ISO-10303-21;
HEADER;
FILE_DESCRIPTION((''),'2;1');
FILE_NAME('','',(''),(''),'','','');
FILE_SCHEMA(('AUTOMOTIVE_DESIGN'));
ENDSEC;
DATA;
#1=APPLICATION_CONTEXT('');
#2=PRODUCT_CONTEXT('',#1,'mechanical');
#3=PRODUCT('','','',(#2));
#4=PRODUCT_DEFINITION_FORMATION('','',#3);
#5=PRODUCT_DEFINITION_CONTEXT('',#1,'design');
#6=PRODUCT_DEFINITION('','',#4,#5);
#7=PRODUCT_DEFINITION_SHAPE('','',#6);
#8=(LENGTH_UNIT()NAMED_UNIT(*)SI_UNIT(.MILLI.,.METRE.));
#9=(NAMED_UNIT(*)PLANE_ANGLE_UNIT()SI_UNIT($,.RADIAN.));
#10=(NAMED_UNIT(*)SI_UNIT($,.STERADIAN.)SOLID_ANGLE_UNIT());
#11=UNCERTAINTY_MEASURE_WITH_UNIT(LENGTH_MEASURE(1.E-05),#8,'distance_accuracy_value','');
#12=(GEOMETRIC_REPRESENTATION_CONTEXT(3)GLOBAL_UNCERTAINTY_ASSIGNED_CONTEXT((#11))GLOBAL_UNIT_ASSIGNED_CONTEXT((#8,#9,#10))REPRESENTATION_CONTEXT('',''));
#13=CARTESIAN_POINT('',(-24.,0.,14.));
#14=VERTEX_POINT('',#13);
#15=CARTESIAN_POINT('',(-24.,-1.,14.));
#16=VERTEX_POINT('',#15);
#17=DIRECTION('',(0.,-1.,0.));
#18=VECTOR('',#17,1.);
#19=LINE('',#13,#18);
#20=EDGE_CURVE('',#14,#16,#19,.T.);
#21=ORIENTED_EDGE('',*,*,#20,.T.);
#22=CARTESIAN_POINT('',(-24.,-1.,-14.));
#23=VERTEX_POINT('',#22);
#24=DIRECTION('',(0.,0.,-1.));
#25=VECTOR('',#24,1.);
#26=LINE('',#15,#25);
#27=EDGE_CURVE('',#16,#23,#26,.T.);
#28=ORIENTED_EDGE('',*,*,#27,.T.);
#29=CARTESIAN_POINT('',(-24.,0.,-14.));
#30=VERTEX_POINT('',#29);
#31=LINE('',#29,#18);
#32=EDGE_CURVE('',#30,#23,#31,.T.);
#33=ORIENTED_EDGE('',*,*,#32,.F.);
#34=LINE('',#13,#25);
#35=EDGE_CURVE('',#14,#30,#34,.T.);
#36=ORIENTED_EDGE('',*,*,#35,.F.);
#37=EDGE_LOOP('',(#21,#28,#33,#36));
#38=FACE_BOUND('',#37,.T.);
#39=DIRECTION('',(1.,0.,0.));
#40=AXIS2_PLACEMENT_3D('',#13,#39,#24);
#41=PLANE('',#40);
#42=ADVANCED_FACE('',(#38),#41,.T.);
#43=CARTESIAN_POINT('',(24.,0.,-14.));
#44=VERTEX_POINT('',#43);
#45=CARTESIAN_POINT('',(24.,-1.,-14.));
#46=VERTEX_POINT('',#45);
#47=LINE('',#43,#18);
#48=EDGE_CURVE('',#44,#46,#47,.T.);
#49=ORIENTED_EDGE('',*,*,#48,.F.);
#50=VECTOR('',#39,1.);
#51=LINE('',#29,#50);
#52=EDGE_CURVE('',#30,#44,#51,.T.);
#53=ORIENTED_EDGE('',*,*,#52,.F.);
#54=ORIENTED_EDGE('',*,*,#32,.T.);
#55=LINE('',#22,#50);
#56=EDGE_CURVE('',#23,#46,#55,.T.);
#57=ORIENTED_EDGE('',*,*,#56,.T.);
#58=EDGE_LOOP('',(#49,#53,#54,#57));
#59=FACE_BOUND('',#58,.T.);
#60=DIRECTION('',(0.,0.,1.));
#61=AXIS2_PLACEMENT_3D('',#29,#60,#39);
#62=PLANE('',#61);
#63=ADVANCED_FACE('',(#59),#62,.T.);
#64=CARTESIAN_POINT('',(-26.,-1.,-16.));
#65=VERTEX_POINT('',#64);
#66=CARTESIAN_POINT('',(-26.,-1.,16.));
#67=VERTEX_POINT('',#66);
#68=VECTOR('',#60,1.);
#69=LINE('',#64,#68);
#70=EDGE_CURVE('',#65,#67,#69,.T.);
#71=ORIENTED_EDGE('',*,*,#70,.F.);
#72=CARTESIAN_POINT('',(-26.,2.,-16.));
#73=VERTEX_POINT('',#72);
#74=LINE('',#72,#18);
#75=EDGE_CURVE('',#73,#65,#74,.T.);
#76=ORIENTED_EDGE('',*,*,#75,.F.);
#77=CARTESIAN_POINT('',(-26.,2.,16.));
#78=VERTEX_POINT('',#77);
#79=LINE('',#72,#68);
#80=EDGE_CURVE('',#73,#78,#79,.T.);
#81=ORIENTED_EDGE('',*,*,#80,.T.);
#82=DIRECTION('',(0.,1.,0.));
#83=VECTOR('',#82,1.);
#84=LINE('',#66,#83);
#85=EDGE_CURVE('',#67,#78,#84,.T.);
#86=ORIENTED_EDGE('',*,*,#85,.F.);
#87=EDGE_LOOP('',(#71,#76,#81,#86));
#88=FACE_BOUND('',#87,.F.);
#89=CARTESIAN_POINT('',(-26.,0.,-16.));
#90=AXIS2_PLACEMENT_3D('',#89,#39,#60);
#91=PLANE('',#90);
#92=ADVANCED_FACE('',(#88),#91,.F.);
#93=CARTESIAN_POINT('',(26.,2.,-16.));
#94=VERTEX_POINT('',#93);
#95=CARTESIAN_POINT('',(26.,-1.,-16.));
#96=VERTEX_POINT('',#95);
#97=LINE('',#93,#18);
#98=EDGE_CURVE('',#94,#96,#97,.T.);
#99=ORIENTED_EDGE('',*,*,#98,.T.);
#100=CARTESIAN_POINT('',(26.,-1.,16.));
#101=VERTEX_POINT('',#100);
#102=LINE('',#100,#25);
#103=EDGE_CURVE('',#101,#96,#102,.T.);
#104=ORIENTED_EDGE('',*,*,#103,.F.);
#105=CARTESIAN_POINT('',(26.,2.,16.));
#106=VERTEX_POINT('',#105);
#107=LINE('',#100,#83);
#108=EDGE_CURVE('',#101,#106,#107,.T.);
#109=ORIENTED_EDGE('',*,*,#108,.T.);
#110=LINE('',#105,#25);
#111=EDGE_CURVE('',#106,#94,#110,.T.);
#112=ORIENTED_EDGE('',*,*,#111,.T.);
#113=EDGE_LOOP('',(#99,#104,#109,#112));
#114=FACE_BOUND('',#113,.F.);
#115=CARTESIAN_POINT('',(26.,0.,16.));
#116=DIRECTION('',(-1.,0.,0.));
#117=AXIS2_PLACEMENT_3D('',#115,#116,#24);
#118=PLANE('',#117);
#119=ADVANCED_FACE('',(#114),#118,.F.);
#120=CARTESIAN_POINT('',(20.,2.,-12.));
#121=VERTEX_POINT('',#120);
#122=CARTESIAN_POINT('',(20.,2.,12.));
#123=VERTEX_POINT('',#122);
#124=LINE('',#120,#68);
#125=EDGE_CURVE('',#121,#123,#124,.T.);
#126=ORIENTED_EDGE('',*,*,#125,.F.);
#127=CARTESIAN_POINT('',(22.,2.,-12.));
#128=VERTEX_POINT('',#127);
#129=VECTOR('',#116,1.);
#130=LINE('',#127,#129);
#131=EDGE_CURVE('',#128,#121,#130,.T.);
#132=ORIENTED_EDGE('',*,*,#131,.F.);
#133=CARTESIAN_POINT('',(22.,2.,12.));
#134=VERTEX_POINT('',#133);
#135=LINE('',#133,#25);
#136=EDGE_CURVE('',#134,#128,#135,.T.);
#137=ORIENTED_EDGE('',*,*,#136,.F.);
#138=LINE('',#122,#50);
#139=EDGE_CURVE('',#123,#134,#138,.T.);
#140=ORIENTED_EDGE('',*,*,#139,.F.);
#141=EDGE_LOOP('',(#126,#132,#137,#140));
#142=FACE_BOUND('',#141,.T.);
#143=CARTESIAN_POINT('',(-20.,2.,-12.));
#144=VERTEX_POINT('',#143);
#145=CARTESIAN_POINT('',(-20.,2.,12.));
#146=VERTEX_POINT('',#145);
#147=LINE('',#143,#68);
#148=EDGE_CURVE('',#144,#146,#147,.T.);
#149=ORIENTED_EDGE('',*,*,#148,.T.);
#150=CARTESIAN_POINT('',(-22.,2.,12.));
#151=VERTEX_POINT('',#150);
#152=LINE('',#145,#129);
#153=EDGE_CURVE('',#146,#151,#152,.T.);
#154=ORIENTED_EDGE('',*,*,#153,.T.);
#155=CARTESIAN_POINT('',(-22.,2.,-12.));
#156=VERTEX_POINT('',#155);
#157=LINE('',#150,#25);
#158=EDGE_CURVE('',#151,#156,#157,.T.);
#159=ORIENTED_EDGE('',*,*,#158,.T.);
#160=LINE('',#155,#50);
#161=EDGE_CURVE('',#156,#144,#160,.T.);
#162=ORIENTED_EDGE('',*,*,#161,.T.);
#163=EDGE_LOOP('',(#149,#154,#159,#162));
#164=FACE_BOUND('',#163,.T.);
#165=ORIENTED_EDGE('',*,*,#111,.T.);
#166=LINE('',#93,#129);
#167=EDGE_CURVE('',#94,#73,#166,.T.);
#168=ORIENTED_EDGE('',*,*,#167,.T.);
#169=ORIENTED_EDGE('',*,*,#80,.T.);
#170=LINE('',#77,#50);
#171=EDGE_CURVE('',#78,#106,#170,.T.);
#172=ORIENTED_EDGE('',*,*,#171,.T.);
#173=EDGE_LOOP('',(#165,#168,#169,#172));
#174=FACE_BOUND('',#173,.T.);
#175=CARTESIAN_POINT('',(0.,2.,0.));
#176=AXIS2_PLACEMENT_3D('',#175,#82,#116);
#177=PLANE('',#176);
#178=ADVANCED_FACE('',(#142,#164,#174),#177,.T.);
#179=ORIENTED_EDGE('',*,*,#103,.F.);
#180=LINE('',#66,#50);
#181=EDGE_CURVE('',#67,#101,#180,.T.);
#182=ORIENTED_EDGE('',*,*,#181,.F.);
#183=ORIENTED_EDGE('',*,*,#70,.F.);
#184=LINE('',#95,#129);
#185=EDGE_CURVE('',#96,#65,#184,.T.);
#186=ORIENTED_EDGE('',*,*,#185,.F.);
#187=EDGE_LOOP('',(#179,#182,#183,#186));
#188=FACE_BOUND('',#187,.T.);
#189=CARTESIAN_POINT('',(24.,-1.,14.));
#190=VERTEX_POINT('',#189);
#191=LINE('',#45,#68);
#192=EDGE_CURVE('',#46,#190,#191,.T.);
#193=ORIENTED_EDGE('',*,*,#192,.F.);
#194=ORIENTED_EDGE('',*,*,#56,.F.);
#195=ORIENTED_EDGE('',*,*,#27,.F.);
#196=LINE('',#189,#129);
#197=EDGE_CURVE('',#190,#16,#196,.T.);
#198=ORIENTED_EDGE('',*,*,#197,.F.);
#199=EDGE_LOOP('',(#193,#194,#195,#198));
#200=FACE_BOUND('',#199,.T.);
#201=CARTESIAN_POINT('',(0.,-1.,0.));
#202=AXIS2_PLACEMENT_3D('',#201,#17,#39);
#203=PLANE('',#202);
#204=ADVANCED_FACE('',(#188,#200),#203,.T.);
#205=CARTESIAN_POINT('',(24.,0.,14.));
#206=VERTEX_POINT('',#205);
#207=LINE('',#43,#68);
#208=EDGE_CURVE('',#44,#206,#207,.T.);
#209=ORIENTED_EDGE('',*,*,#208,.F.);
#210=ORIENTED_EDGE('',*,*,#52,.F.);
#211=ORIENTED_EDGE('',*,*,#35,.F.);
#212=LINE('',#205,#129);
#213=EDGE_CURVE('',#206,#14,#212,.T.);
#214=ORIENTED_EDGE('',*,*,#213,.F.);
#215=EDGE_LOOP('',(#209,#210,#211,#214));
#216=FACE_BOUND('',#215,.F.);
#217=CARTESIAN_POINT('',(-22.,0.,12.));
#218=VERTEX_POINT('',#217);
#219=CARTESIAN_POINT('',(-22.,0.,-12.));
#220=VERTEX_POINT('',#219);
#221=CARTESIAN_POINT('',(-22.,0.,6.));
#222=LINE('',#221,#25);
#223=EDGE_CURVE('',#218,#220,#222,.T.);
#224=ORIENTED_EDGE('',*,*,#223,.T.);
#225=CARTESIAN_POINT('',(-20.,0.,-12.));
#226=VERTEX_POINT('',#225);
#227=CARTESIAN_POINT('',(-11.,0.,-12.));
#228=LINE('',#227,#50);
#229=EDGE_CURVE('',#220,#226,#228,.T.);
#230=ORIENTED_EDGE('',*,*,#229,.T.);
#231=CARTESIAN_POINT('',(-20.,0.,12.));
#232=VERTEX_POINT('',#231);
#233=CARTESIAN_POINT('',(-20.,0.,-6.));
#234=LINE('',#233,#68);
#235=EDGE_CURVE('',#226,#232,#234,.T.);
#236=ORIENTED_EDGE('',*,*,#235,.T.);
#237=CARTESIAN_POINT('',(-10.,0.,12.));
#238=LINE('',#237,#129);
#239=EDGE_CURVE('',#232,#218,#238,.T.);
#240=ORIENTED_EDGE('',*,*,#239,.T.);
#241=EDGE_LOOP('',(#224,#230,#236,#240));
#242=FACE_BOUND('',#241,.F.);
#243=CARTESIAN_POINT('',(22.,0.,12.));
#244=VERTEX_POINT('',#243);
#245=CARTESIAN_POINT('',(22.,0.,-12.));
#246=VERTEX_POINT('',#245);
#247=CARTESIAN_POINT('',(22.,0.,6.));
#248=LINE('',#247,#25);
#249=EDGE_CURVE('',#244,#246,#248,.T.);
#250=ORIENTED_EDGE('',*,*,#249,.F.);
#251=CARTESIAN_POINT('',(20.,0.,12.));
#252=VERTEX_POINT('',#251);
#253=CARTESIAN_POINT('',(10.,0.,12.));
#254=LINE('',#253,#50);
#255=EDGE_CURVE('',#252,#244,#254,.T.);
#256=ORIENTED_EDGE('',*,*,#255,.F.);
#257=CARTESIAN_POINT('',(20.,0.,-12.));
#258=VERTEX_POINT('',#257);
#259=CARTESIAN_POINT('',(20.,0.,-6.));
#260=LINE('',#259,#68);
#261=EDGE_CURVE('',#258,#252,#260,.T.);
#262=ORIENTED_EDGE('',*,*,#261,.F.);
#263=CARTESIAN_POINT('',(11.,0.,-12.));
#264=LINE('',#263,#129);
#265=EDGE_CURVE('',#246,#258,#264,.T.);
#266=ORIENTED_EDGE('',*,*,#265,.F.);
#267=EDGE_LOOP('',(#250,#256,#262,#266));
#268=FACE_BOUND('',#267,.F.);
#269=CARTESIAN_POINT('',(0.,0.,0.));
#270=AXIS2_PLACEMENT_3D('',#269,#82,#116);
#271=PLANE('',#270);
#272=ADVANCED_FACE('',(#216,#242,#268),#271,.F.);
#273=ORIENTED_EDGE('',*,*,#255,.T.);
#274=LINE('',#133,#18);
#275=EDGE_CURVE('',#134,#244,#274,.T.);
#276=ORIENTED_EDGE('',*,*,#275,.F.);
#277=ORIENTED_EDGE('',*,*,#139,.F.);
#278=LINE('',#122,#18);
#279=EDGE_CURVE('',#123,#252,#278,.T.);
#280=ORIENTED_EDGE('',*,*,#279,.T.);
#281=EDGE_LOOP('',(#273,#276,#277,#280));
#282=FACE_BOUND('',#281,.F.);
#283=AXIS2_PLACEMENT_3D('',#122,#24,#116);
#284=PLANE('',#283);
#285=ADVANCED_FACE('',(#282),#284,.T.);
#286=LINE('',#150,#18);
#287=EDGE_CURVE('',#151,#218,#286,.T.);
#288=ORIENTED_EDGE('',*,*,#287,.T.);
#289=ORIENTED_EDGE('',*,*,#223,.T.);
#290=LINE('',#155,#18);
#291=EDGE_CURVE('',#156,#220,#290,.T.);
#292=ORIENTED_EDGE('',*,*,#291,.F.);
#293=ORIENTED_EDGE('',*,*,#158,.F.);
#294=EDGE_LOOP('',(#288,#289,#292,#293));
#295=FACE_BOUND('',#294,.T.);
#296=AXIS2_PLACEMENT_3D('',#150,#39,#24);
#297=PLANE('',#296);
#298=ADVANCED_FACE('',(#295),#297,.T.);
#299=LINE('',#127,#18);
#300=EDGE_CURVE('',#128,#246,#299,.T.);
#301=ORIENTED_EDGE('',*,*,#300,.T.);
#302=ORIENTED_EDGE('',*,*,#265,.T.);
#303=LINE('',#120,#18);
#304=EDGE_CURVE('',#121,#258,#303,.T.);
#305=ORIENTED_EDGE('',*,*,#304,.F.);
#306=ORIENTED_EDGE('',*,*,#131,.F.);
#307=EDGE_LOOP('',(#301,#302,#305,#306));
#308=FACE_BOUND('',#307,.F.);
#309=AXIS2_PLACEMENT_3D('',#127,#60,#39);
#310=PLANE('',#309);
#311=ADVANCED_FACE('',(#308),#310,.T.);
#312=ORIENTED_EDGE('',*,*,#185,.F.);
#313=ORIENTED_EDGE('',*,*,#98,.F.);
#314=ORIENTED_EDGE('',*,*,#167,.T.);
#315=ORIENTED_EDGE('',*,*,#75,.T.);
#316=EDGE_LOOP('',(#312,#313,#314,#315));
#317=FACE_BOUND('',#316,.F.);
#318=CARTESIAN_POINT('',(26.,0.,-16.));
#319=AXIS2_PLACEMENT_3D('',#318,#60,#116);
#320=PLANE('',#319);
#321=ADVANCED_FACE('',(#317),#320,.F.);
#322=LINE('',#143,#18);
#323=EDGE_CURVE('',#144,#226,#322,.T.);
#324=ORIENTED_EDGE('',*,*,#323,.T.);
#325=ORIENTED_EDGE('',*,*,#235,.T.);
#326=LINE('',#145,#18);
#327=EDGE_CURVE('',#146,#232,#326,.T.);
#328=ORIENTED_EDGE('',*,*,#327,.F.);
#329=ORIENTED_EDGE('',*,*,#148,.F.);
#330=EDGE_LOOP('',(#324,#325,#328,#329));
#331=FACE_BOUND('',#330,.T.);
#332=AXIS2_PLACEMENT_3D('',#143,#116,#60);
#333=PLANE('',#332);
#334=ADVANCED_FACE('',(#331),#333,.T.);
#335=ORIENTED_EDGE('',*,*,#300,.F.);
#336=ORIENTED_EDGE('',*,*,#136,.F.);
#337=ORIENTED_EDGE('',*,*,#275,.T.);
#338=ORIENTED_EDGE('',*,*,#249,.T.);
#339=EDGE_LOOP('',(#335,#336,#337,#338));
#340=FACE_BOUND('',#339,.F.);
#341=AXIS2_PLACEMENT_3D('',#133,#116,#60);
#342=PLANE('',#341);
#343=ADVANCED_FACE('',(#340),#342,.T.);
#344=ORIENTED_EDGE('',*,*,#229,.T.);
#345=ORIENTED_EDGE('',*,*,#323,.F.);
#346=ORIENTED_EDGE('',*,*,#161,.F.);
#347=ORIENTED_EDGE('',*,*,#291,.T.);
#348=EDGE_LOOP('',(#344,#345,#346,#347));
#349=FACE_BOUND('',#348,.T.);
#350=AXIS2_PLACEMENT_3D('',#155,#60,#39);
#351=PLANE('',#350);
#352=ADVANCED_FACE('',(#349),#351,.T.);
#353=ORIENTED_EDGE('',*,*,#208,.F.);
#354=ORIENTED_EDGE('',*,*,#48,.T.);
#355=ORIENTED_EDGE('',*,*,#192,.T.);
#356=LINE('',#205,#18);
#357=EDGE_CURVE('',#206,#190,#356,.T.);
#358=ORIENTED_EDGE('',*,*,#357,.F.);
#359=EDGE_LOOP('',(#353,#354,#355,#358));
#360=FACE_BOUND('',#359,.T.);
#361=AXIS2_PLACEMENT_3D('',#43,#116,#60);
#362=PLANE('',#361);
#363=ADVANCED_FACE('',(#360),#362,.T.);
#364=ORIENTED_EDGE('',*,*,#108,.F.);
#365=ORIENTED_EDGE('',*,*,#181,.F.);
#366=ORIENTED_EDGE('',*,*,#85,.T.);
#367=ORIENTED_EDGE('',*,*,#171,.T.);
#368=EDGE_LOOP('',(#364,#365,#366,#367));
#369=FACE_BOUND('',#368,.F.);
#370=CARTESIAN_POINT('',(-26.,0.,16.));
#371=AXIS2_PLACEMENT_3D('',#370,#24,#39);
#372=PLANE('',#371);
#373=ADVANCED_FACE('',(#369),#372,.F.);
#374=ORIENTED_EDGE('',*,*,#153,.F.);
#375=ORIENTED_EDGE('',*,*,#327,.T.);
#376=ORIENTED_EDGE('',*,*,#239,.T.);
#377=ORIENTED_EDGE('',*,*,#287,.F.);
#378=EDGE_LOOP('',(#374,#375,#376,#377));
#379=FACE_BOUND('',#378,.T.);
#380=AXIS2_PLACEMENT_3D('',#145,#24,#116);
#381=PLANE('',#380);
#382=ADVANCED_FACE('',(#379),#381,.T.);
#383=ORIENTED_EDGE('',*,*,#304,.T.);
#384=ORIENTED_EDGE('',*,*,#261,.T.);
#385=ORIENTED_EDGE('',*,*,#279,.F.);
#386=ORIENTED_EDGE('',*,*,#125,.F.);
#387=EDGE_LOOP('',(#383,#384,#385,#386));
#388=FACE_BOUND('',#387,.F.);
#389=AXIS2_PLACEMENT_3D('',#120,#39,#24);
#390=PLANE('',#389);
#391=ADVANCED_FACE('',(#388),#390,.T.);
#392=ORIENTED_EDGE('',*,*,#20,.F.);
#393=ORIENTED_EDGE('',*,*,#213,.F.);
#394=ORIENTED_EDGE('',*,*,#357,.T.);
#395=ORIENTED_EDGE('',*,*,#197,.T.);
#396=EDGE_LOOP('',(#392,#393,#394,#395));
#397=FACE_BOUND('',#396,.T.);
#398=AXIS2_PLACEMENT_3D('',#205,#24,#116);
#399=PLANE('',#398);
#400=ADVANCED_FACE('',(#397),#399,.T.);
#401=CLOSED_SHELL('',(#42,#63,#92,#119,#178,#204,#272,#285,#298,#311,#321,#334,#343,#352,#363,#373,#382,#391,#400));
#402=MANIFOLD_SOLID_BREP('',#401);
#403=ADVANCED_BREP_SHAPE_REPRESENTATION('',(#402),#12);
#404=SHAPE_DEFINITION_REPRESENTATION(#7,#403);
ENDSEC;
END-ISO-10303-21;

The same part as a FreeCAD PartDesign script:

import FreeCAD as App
import Part
import Sketcher

V = App.Vector


def add_polygon(sketch, points):
    """Adds a closed chain of lines whose ends are joined by coincident constraints."""
    first, n = sketch.GeometryCount, len(points)
    for a, b in zip(points, points[1:] + points[:1]):
        sketch.addGeometry(Part.LineSegment(App.Vector(*a, 0), App.Vector(*b, 0)), False)
    for i in range(n):
        sketch.addConstraint(Sketcher.Constraint("Coincident", first + i, 2, first + (i + 1) % n, 1))

doc = App.newDocument("Part")
body = doc.addObject("PartDesign::Body", "Body")

# Sketch on XZ plane
sketch1 = body.newObject("Sketcher::SketchObject", "Sketch")
sketch1.AttachmentSupport = (doc.getObject("XZ_Plane"), [""])
sketch1.MapMode = "FlatFace"
add_polygon(sketch1, [(-26, -16), (-26, 16), (26, 16), (26, -16)])  # lines 0-3
sketch1.addConstraint([
    Sketcher.Constraint("Vertical", 0),
    Sketcher.Constraint("Horizontal", 1),
    Sketcher.Constraint("Vertical", 2),
    Sketcher.Constraint("Horizontal", 3),
    Sketcher.Constraint("Symmetric", 0, 2, 2, 2, -1, 1),
    Sketcher.Constraint("DistanceX", 1, 1, 1, 2, 52.0),
    Sketcher.Constraint("DistanceY", 0, 1, 0, 2, 32.0),
])
pad1 = body.newObject("PartDesign::Pad", "Pad")
pad1.Profile = sketch1
pad1.Length = 2
pad1.Reversed = True

# Sketch on XZ plane
sketch2 = body.newObject("Sketcher::SketchObject", "Sketch001")
sketch2.AttachmentSupport = (doc.getObject("XZ_Plane"), [""])
sketch2.MapMode = "FlatFace"
add_polygon(sketch2, [(26, 16), (-26, 16), (-26, -16), (26, -16)])  # lines 0-3
add_polygon(sketch2, [(-24, 14), (24, 14), (24, -14), (-24, -14)])  # lines 4-7
sketch2.addConstraint([
    Sketcher.Constraint("Horizontal", 0),
    Sketcher.Constraint("Vertical", 1),
    Sketcher.Constraint("Horizontal", 2),
    Sketcher.Constraint("Vertical", 3),
    Sketcher.Constraint("Horizontal", 4),
    Sketcher.Constraint("Vertical", 5),
    Sketcher.Constraint("Horizontal", 6),
    Sketcher.Constraint("Vertical", 7),
    Sketcher.Constraint("Symmetric", 0, 2, 2, 2, -1, 1),
    Sketcher.Constraint("Symmetric", 4, 2, 6, 2, -1, 1),
    Sketcher.Constraint("DistanceX", 4, 2, 3, 2, 2.0),
    Sketcher.Constraint("DistanceY", 4, 2, 3, 2, 2.0),
    Sketcher.Constraint("DistanceX", 0, 2, 0, 1, 52.0),
    Sketcher.Constraint("DistanceY", 1, 2, 1, 1, 32.0),
])
pad2 = body.newObject("PartDesign::Pad", "Pad001")
pad2.Profile = sketch2
pad2.Length = 1

# Sketch on XZ plane
sketch3 = body.newObject("Sketcher::SketchObject", "Sketch002")
sketch3.AttachmentSupport = (doc.getObject("XZ_Plane"), [""])
sketch3.MapMode = "FlatFace"
sketch3.AttachmentOffset = App.Placement(V(0, 0, -2), App.Rotation())
add_polygon(sketch3, [(-20, -12), (-22, -12), (-22, 12), (-20, 12)])  # lines 0-3
sketch3.addConstraint([
    Sketcher.Constraint("Horizontal", 0),
    Sketcher.Constraint("Vertical", 1),
    Sketcher.Constraint("Horizontal", 2),
    Sketcher.Constraint("Vertical", 3),
    Sketcher.Constraint("DistanceX", 0, 2, 0, 1, 2.0),
    Sketcher.Constraint("DistanceY", 1, 1, 1, 2, 24.0),
    Sketcher.Constraint("DistanceX", 0, 2, -1, 1, 22.0),
    Sketcher.Constraint("DistanceY", 0, 2, -1, 1, 12.0),
])
pocket1 = body.newObject("PartDesign::Pocket", "Pocket")
pocket1.Profile = sketch3
pocket1.Type = "ThroughAll"
pocket1.Reversed = True
doc.recompute()

mirrored = body.newObject("PartDesign::Mirrored", "Mirrored")
mirrored.Originals = [pocket1]
mirrored.MirrorPlane = (doc.getObject("YZ_Plane"), [""])
body.Tip = mirrored

doc.recompute()
